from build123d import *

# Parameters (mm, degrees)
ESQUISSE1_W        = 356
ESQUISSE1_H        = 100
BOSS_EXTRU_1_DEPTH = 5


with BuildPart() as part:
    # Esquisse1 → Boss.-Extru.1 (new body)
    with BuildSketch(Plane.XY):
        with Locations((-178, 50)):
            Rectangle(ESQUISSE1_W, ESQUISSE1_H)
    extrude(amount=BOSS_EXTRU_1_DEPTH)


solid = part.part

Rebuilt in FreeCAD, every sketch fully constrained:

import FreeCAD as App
import Part
import Sketcher
from FreeCAD import Vector

doc = App.newDocument("Part")
body = doc.addObject("PartDesign::Body", "Body")

sketch1 = body.newObject("Sketcher::SketchObject", "Sketch")
sketch1.AttachmentSupport = (doc.getObject("XY_Plane"), [""])
sketch1.MapMode = "FlatFace"
sketch1.addGeometry([
    Part.LineSegment(Vector(-356, 100, 0), Vector(-356, 0, 0)),
    Part.LineSegment(Vector(-356, 0, 0), Vector(0, 0, 0)),
    Part.LineSegment(Vector(0, 0, 0), Vector(0, 100, 0)),
    Part.LineSegment(Vector(0, 100, 0), Vector(-356, 100, 0)),
], False)
sketch1.addConstraint([
    Sketcher.Constraint("Coincident", 0, 2, 1, 1),
    Sketcher.Constraint("Coincident", 1, 2, 2, 1),
    Sketcher.Constraint("Coincident", 2, 2, 3, 1),
    Sketcher.Constraint("Coincident", 3, 2, 0, 1),
    Sketcher.Constraint("Vertical", 0),
    Sketcher.Constraint("Horizontal", 1),
    Sketcher.Constraint("Vertical", 2),
    Sketcher.Constraint("Horizontal", 3),
    Sketcher.Constraint("Coincident", 1, 2, -1, 1),
    Sketcher.Constraint("DistanceX", 1, 1, 1, 2, 356.0),
    Sketcher.Constraint("DistanceY", 0, 2, 0, 1, 100.0),
])
pad1 = body.newObject("PartDesign::Pad", "Pad")
pad1.Profile = sketch1
pad1.Length = 5

doc.recompute()
